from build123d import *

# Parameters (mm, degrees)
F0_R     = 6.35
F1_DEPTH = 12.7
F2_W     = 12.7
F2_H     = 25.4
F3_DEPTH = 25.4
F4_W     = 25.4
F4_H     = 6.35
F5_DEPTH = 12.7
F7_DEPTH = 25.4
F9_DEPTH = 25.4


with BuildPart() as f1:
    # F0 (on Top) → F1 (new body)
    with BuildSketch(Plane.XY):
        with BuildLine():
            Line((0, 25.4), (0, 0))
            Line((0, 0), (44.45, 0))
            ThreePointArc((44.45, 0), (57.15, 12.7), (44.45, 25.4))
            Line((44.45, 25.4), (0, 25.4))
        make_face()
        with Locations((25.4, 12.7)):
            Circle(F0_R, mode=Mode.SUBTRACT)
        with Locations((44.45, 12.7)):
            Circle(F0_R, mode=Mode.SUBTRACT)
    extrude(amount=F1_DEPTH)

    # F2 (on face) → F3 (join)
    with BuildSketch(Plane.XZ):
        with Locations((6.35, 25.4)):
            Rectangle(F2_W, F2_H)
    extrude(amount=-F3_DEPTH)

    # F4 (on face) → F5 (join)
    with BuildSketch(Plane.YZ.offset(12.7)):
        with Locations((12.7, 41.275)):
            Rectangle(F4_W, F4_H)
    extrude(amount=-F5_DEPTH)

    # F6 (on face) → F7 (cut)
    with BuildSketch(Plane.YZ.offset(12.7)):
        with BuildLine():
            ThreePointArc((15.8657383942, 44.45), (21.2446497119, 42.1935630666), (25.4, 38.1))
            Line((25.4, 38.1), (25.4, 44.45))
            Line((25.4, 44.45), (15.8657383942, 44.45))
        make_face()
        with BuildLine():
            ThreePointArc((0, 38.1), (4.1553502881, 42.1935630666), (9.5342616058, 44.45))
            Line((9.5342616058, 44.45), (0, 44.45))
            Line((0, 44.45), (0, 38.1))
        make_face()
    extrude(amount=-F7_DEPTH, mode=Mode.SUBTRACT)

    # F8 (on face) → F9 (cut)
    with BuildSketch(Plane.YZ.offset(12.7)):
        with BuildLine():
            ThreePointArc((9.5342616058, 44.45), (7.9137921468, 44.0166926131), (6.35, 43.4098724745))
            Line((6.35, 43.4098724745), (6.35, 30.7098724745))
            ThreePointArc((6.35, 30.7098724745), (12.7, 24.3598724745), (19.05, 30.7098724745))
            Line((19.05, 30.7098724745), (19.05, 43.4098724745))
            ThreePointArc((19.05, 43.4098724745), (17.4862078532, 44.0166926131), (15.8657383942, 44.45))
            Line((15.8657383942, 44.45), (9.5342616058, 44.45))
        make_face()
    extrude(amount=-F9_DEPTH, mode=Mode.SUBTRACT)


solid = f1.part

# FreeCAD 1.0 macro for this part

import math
import FreeCAD as App
import Part
import Sketcher
Q = App.Units.Quantity

doc = App.newDocument("Part")
params = doc.addObject("Spreadsheet::Sheet", "Params")
for row, (alias, value) in enumerate([
    ("sketch1_diameter", "0.5 in"),
    ("sketch1_radius", "0.5 in"),
    ("sketch1_width", "1.75 in"),
    ("pad1_length", "0.5 in"),
    ("sketch2_height", "1 in"),
    ("sketch2_width", "0.5 in"),
    ("pad2_length", "1 in"),
    ("sketch3_width", "1 in"),
    ("sketch3_height", "0.25 in"),
    ("pad3_length", "0.5 in"),
    ("sketch4_height", "0.25 in"),
    ("pocket1_length", "1 in"),
    ("sketch5_radius", "0.25 in"),
    ("sketch5_height", "0.5 in"),
    ("pocket2_length", "1 in"),
], start=1):
    params.set(f"A{row}", alias)
    params.set(f"B{row}", "=" + value)
    params.setAlias(f"B{row}", alias)

body = doc.addObject("PartDesign::Body", "Body")

# Sketch on XY plane
sketch1 = doc.addObject("Sketcher::SketchObject", "Sketch")
body.addObject(sketch1)
sketch1.AttachmentSupport = (doc.XY_Plane, [""])
sketch1.MapMode = "FlatFace"
sketch1.addGeometry([
    Part.LineSegment(App.Vector(0, 25.4, 0), App.Vector(0, 0, 0)),  # 0
    Part.LineSegment(App.Vector(0, 0, 0), App.Vector(44.45, 0, 0)),  # 1
    Part.ArcOfCircle(Part.Circle(App.Vector(44.45, 12.7, 0), App.Vector(0, 0, 1), 12.7), math.radians(-90), math.radians(90)),  # 2
    Part.LineSegment(App.Vector(44.45, 25.4, 0), App.Vector(0, 25.4, 0)),  # 3
    Part.Circle(App.Vector(25.4, 12.7, 0), App.Vector(0, 0, 1), 6.35),  # 4
    Part.Circle(App.Vector(44.45, 12.7, 0), App.Vector(0, 0, 1), 6.35),  # 5
], False)
sketch1.addConstraint([
    Sketcher.Constraint("Coincident", 0, 2, 1, 1),
    Sketcher.Constraint("Tangent", 1, 2, 2, 1),
    Sketcher.Constraint("Tangent", 2, 2, 3, 1),
    Sketcher.Constraint("Coincident", 3, 2, 0, 1),
    Sketcher.Constraint("Vertical", 0),
    Sketcher.Constraint("Horizontal", 1),
    Sketcher.Constraint("Horizontal", 3),
    Sketcher.Constraint("Coincident", 0, 2, -1, 1),
    Sketcher.Constraint("Coincident", 5, 3, 2, 3),
    Sketcher.Constraint("Equal", 4, 5),
    Sketcher.Constraint("Horizontal", 2, 3, 4, 3),
    Sketcher.Constraint("Diameter", 4, Q("0.5 in")),
    Sketcher.Constraint("Radius", 2, Q("0.5 in")),
    Sketcher.Constraint("DistanceX", -1, 1, 4, 3, Q("1 in")),
    Sketcher.Constraint("DistanceX", 1, 1, 1, 2, Q("1.75 in")),
])
sketch1.setExpression("Constraints[11]", "Params.sketch1_diameter")
sketch1.setExpression("Constraints[12]", "Params.sketch1_radius")
sketch1.setExpression("Constraints[14]", "Params.sketch1_width")
pad1 = doc.addObject("PartDesign::Pad", "Pad")
body.addObject(pad1)
pad1.Profile = sketch1
pad1.setExpression("Length", "Params.pad1_length")

# Sketch on XZ plane
sketch2 = doc.addObject("Sketcher::SketchObject", "Sketch001")
body.addObject(sketch2)
sketch2.AttachmentSupport = (doc.XZ_Plane, [""])
sketch2.MapMode = "FlatFace"
sketch2.addGeometry([
    Part.LineSegment(App.Vector(0, 38.1, 0), App.Vector(0, 12.7, 0)),
    Part.LineSegment(App.Vector(0, 12.7, 0), App.Vector(12.7, 12.7, 0)),
    Part.LineSegment(App.Vector(12.7, 12.7, 0), App.Vector(12.7, 38.1, 0)),
    Part.LineSegment(App.Vector(12.7, 38.1, 0), App.Vector(0, 38.1, 0)),
], False)
sketch2.addConstraint([
    Sketcher.Constraint("Coincident", 0, 2, 1, 1),
    Sketcher.Constraint("Coincident", 1, 2, 2, 1),
    Sketcher.Constraint("Coincident", 2, 2, 3, 1),
    Sketcher.Constraint("Coincident", 3, 2, 0, 1),
    Sketcher.Constraint("Vertical", 0),
    Sketcher.Constraint("Horizontal", 1),
    Sketcher.Constraint("Vertical", 2),
    Sketcher.Constraint("Horizontal", 3),
    Sketcher.Constraint("PointOnObject", 0, 2, -2),
    Sketcher.Constraint("DistanceY", 0, 2, 0, 1, Q("1 in")),
    Sketcher.Constraint("DistanceX", 1, 1, 1, 2, Q("0.5 in")),
    Sketcher.Constraint("DistanceY", -1, 1, 0, 2, Q("0.5 in")),
])
sketch2.setExpression("Constraints[9]", "Params.sketch2_height")
sketch2.setExpression("Constraints[10]", "Params.sketch2_width")
pad2 = doc.addObject("PartDesign::Pad", "Pad001")
body.addObject(pad2)
pad2.Profile = sketch2
pad2.setExpression("Length", "Params.pad2_length")
pad2.Reversed = True

# Sketch on YZ plane
sketch3 = doc.addObject("Sketcher::SketchObject", "Sketch002")
body.addObject(sketch3)
sketch3.AttachmentSupport = (doc.YZ_Plane, [""])
sketch3.MapMode = "FlatFace"
sketch3.AttachmentOffset = App.Placement(App.Vector(0, 0, 0.5 * 25.4), App.Rotation())
sketch3.addGeometry([
    Part.LineSegment(App.Vector(0, 44.45, 0), App.Vector(0, 38.1, 0)),
    Part.LineSegment(App.Vector(0, 38.1, 0), App.Vector(25.4, 38.1, 0)),
    Part.LineSegment(App.Vector(25.4, 38.1, 0), App.Vector(25.4, 44.45, 0)),
    Part.LineSegment(App.Vector(25.4, 44.45, 0), App.Vector(0, 44.45, 0)),
], False)
sketch3.addConstraint([
    Sketcher.Constraint("Coincident", 0, 2, 1, 1),
    Sketcher.Constraint("Coincident", 1, 2, 2, 1),
    Sketcher.Constraint("Coincident", 2, 2, 3, 1),
    Sketcher.Constraint("Coincident", 3, 2, 0, 1),
    Sketcher.Constraint("Vertical", 0),
    Sketcher.Constraint("Horizontal", 1),
    Sketcher.Constraint("Vertical", 2),
    Sketcher.Constraint("Horizontal", 3),
    Sketcher.Constraint("PointOnObject", 0, 2, -2),
    Sketcher.Constraint("DistanceX", 1, 1, 1, 2, Q("1 in")),
    Sketcher.Constraint("DistanceY", 0, 2, 0, 1, Q("0.25 in")),
    Sketcher.Constraint("DistanceY", -1, 1, 0, 2, Q("1.5 in")),
])
sketch3.setExpression("Constraints[9]", "Params.sketch3_width")
sketch3.setExpression("Constraints[10]", "Params.sketch3_height")
pad3 = doc.addObject("PartDesign::Pad", "Pad002")
body.addObject(pad3)
pad3.Profile = sketch3
pad3.setExpression("Length", "Params.pad3_length")
pad3.Reversed = True

# Sketch on YZ plane
sketch4 = doc.addObject("Sketcher::SketchObject", "Sketch003")
body.addObject(sketch4)
sketch4.AttachmentSupport = (doc.YZ_Plane, [""])
sketch4.MapMode = "FlatFace"
sketch4.AttachmentOffset = App.Placement(App.Vector(0, 0, 0.5 * 25.4), App.Rotation())
sketch4.addGeometry([
    Part.ArcOfCircle(Part.Circle(App.Vector(12.7, 29.364126, 0), App.Vector(0, 0, 1), 15.414457), math.radians(34.522686), math.radians(78.14857)),  # 0
    Part.LineSegment(App.Vector(25.4, 38.1, 0), App.Vector(25.4, 44.45, 0)),  # 1
    Part.LineSegment(App.Vector(25.4, 44.45, 0), App.Vector(15.865738, 44.45, 0)),  # 2
    Part.ArcOfCircle(Part.Circle(App.Vector(12.7, 29.364126, 0), App.Vector(0, 0, 1), 15.414457), math.radians(101.85143), math.radians(145.477314)),  # 3
    Part.LineSegment(App.Vector(9.534262, 44.45, 0), App.Vector(0, 44.45, 0)),  # 4
    Part.LineSegment(App.Vector(0, 44.45, 0), App.Vector(0, 38.1, 0)),  # 5
], False)
sketch4.addConstraint([
    Sketcher.Constraint("Coincident", 0, 1, 1, 1),
    Sketcher.Constraint("Coincident", 1, 2, 2, 1),
    Sketcher.Constraint("Coincident", 2, 2, 0, 2),
    Sketcher.Constraint("Coincident", 3, 1, 4, 1),
    Sketcher.Constraint("Coincident", 4, 2, 5, 1),
    Sketcher.Constraint("Coincident", 5, 2, 3, 2),
    Sketcher.Constraint("Vertical", 1),
    Sketcher.Constraint("Horizontal", 2),
    Sketcher.Constraint("Horizontal", 4),
    Sketcher.Constraint("Vertical", 5),
    Sketcher.Constraint("Coincident", 3, 3, 0, 3),
    Sketcher.Constraint("Equal", 0, 3),
    Sketcher.Constraint("PointOnObject", 4, 2, -2),
    Sketcher.Constraint("Horizontal", 2, 2, 3, 1),
    Sketcher.Constraint("Horizontal", 0, 1, 5, 2),
    Sketcher.Constraint("DistanceX", -1, 1, 0, 1, Q("1 in")),
    Sketcher.Constraint("DistanceY", 1, 1, 1, 2, Q("0.25 in")),
    Sketcher.Constraint("DistanceY", -1, 1, 0, 1, Q("1.5 in")),
    Sketcher.Constraint("Radius", 0, Q("15.414457 mm")),
])
sketch4.setExpression("Constraints[16]", "Params.sketch4_height")
pocket1 = doc.addObject("PartDesign::Pocket", "Pocket")
body.addObject(pocket1)
pocket1.Profile = sketch4
pocket1.setExpression("Length", "Params.pocket1_length")

# Sketch on YZ plane
sketch5 = doc.addObject("Sketcher::SketchObject", "Sketch004")
body.addObject(sketch5)
sketch5.AttachmentSupport = (doc.YZ_Plane, [""])
sketch5.MapMode = "FlatFace"
sketch5.AttachmentOffset = App.Placement(App.Vector(0, 0, 0.5 * 25.4), App.Rotation())
sketch5.addGeometry([
    Part.ArcOfCircle(Part.Circle(App.Vector(12.7, 29.364126, 0), App.Vector(0, 0, 1), 15.414457), math.radians(101.85143), math.radians(114.327448)),  # 0
    Part.LineSegment(App.Vector(6.35, 43.409872, 0), App.Vector(6.35, 30.709872, 0)),  # 1
    Part.ArcOfCircle(Part.Circle(App.Vector(12.7, 30.709872, 0), App.Vector(0, 0, 1), 6.35), math.radians(-180), math.radians(0)),  # 2
    Part.LineSegment(App.Vector(19.05, 30.709872, 0), App.Vector(19.05, 43.409872, 0)),  # 3
    Part.ArcOfCircle(Part.Circle(App.Vector(12.7, 29.364126, 0), App.Vector(0, 0, 1), 15.414457), math.radians(65.672552), math.radians(78.14857)),  # 4
    Part.LineSegment(App.Vector(15.865738, 44.45, 0), App.Vector(9.534262, 44.45, 0)),  # 5
], False)
sketch5.addConstraint([
    Sketcher.Constraint("Coincident", 0, 2, 1, 1),
    Sketcher.Constraint("Tangent", 1, 2, 2, 1),
    Sketcher.Constraint("Tangent", 2, 2, 3, 1),
    Sketcher.Constraint("Coincident", 3, 2, 4, 1),
    Sketcher.Constraint("Coincident", 4, 2, 5, 1),
    Sketcher.Constraint("Coincident", 5, 2, 0, 1),
    Sketcher.Constraint("Vertical", 1),
    Sketcher.Constraint("Vertical", 3),
    Sketcher.Constraint("Horizontal", 5),
    Sketcher.Constraint("Coincident", 4, 3, 0, 3),
    Sketcher.Constraint("Equal", 0, 4),
    Sketcher.Constraint("Horizontal", 0, 2, 3, 2),
    Sketcher.Constraint("Radius", 2, Q("0.25 in")),
    Sketcher.Constraint("DistanceY", 1, 2, 1, 1, Q("0.5 in")),
    Sketcher.Constraint("DistanceX", -1, 1, 0, 3, Q("0.5 in")),
    Sketcher.Constraint("DistanceY", -1, 1, 4, 2, Q("1.75 in")),
    Sketcher.Constraint("Radius", 0, Q("15.414457 mm")),
    Sketcher.Constraint("DistanceX", 5, 2, 5, 1, Q("6.331477 mm")),
])
sketch5.setExpression("Constraints[12]", "Params.sketch5_radius")
sketch5.setExpression("Constraints[13]", "Params.sketch5_height")
pocket2 = doc.addObject("PartDesign::Pocket", "Pocket001")
body.addObject(pocket2)
pocket2.Profile = sketch5
pocket2.setExpression("Length", "Params.pocket2_length")

doc.recompute()
